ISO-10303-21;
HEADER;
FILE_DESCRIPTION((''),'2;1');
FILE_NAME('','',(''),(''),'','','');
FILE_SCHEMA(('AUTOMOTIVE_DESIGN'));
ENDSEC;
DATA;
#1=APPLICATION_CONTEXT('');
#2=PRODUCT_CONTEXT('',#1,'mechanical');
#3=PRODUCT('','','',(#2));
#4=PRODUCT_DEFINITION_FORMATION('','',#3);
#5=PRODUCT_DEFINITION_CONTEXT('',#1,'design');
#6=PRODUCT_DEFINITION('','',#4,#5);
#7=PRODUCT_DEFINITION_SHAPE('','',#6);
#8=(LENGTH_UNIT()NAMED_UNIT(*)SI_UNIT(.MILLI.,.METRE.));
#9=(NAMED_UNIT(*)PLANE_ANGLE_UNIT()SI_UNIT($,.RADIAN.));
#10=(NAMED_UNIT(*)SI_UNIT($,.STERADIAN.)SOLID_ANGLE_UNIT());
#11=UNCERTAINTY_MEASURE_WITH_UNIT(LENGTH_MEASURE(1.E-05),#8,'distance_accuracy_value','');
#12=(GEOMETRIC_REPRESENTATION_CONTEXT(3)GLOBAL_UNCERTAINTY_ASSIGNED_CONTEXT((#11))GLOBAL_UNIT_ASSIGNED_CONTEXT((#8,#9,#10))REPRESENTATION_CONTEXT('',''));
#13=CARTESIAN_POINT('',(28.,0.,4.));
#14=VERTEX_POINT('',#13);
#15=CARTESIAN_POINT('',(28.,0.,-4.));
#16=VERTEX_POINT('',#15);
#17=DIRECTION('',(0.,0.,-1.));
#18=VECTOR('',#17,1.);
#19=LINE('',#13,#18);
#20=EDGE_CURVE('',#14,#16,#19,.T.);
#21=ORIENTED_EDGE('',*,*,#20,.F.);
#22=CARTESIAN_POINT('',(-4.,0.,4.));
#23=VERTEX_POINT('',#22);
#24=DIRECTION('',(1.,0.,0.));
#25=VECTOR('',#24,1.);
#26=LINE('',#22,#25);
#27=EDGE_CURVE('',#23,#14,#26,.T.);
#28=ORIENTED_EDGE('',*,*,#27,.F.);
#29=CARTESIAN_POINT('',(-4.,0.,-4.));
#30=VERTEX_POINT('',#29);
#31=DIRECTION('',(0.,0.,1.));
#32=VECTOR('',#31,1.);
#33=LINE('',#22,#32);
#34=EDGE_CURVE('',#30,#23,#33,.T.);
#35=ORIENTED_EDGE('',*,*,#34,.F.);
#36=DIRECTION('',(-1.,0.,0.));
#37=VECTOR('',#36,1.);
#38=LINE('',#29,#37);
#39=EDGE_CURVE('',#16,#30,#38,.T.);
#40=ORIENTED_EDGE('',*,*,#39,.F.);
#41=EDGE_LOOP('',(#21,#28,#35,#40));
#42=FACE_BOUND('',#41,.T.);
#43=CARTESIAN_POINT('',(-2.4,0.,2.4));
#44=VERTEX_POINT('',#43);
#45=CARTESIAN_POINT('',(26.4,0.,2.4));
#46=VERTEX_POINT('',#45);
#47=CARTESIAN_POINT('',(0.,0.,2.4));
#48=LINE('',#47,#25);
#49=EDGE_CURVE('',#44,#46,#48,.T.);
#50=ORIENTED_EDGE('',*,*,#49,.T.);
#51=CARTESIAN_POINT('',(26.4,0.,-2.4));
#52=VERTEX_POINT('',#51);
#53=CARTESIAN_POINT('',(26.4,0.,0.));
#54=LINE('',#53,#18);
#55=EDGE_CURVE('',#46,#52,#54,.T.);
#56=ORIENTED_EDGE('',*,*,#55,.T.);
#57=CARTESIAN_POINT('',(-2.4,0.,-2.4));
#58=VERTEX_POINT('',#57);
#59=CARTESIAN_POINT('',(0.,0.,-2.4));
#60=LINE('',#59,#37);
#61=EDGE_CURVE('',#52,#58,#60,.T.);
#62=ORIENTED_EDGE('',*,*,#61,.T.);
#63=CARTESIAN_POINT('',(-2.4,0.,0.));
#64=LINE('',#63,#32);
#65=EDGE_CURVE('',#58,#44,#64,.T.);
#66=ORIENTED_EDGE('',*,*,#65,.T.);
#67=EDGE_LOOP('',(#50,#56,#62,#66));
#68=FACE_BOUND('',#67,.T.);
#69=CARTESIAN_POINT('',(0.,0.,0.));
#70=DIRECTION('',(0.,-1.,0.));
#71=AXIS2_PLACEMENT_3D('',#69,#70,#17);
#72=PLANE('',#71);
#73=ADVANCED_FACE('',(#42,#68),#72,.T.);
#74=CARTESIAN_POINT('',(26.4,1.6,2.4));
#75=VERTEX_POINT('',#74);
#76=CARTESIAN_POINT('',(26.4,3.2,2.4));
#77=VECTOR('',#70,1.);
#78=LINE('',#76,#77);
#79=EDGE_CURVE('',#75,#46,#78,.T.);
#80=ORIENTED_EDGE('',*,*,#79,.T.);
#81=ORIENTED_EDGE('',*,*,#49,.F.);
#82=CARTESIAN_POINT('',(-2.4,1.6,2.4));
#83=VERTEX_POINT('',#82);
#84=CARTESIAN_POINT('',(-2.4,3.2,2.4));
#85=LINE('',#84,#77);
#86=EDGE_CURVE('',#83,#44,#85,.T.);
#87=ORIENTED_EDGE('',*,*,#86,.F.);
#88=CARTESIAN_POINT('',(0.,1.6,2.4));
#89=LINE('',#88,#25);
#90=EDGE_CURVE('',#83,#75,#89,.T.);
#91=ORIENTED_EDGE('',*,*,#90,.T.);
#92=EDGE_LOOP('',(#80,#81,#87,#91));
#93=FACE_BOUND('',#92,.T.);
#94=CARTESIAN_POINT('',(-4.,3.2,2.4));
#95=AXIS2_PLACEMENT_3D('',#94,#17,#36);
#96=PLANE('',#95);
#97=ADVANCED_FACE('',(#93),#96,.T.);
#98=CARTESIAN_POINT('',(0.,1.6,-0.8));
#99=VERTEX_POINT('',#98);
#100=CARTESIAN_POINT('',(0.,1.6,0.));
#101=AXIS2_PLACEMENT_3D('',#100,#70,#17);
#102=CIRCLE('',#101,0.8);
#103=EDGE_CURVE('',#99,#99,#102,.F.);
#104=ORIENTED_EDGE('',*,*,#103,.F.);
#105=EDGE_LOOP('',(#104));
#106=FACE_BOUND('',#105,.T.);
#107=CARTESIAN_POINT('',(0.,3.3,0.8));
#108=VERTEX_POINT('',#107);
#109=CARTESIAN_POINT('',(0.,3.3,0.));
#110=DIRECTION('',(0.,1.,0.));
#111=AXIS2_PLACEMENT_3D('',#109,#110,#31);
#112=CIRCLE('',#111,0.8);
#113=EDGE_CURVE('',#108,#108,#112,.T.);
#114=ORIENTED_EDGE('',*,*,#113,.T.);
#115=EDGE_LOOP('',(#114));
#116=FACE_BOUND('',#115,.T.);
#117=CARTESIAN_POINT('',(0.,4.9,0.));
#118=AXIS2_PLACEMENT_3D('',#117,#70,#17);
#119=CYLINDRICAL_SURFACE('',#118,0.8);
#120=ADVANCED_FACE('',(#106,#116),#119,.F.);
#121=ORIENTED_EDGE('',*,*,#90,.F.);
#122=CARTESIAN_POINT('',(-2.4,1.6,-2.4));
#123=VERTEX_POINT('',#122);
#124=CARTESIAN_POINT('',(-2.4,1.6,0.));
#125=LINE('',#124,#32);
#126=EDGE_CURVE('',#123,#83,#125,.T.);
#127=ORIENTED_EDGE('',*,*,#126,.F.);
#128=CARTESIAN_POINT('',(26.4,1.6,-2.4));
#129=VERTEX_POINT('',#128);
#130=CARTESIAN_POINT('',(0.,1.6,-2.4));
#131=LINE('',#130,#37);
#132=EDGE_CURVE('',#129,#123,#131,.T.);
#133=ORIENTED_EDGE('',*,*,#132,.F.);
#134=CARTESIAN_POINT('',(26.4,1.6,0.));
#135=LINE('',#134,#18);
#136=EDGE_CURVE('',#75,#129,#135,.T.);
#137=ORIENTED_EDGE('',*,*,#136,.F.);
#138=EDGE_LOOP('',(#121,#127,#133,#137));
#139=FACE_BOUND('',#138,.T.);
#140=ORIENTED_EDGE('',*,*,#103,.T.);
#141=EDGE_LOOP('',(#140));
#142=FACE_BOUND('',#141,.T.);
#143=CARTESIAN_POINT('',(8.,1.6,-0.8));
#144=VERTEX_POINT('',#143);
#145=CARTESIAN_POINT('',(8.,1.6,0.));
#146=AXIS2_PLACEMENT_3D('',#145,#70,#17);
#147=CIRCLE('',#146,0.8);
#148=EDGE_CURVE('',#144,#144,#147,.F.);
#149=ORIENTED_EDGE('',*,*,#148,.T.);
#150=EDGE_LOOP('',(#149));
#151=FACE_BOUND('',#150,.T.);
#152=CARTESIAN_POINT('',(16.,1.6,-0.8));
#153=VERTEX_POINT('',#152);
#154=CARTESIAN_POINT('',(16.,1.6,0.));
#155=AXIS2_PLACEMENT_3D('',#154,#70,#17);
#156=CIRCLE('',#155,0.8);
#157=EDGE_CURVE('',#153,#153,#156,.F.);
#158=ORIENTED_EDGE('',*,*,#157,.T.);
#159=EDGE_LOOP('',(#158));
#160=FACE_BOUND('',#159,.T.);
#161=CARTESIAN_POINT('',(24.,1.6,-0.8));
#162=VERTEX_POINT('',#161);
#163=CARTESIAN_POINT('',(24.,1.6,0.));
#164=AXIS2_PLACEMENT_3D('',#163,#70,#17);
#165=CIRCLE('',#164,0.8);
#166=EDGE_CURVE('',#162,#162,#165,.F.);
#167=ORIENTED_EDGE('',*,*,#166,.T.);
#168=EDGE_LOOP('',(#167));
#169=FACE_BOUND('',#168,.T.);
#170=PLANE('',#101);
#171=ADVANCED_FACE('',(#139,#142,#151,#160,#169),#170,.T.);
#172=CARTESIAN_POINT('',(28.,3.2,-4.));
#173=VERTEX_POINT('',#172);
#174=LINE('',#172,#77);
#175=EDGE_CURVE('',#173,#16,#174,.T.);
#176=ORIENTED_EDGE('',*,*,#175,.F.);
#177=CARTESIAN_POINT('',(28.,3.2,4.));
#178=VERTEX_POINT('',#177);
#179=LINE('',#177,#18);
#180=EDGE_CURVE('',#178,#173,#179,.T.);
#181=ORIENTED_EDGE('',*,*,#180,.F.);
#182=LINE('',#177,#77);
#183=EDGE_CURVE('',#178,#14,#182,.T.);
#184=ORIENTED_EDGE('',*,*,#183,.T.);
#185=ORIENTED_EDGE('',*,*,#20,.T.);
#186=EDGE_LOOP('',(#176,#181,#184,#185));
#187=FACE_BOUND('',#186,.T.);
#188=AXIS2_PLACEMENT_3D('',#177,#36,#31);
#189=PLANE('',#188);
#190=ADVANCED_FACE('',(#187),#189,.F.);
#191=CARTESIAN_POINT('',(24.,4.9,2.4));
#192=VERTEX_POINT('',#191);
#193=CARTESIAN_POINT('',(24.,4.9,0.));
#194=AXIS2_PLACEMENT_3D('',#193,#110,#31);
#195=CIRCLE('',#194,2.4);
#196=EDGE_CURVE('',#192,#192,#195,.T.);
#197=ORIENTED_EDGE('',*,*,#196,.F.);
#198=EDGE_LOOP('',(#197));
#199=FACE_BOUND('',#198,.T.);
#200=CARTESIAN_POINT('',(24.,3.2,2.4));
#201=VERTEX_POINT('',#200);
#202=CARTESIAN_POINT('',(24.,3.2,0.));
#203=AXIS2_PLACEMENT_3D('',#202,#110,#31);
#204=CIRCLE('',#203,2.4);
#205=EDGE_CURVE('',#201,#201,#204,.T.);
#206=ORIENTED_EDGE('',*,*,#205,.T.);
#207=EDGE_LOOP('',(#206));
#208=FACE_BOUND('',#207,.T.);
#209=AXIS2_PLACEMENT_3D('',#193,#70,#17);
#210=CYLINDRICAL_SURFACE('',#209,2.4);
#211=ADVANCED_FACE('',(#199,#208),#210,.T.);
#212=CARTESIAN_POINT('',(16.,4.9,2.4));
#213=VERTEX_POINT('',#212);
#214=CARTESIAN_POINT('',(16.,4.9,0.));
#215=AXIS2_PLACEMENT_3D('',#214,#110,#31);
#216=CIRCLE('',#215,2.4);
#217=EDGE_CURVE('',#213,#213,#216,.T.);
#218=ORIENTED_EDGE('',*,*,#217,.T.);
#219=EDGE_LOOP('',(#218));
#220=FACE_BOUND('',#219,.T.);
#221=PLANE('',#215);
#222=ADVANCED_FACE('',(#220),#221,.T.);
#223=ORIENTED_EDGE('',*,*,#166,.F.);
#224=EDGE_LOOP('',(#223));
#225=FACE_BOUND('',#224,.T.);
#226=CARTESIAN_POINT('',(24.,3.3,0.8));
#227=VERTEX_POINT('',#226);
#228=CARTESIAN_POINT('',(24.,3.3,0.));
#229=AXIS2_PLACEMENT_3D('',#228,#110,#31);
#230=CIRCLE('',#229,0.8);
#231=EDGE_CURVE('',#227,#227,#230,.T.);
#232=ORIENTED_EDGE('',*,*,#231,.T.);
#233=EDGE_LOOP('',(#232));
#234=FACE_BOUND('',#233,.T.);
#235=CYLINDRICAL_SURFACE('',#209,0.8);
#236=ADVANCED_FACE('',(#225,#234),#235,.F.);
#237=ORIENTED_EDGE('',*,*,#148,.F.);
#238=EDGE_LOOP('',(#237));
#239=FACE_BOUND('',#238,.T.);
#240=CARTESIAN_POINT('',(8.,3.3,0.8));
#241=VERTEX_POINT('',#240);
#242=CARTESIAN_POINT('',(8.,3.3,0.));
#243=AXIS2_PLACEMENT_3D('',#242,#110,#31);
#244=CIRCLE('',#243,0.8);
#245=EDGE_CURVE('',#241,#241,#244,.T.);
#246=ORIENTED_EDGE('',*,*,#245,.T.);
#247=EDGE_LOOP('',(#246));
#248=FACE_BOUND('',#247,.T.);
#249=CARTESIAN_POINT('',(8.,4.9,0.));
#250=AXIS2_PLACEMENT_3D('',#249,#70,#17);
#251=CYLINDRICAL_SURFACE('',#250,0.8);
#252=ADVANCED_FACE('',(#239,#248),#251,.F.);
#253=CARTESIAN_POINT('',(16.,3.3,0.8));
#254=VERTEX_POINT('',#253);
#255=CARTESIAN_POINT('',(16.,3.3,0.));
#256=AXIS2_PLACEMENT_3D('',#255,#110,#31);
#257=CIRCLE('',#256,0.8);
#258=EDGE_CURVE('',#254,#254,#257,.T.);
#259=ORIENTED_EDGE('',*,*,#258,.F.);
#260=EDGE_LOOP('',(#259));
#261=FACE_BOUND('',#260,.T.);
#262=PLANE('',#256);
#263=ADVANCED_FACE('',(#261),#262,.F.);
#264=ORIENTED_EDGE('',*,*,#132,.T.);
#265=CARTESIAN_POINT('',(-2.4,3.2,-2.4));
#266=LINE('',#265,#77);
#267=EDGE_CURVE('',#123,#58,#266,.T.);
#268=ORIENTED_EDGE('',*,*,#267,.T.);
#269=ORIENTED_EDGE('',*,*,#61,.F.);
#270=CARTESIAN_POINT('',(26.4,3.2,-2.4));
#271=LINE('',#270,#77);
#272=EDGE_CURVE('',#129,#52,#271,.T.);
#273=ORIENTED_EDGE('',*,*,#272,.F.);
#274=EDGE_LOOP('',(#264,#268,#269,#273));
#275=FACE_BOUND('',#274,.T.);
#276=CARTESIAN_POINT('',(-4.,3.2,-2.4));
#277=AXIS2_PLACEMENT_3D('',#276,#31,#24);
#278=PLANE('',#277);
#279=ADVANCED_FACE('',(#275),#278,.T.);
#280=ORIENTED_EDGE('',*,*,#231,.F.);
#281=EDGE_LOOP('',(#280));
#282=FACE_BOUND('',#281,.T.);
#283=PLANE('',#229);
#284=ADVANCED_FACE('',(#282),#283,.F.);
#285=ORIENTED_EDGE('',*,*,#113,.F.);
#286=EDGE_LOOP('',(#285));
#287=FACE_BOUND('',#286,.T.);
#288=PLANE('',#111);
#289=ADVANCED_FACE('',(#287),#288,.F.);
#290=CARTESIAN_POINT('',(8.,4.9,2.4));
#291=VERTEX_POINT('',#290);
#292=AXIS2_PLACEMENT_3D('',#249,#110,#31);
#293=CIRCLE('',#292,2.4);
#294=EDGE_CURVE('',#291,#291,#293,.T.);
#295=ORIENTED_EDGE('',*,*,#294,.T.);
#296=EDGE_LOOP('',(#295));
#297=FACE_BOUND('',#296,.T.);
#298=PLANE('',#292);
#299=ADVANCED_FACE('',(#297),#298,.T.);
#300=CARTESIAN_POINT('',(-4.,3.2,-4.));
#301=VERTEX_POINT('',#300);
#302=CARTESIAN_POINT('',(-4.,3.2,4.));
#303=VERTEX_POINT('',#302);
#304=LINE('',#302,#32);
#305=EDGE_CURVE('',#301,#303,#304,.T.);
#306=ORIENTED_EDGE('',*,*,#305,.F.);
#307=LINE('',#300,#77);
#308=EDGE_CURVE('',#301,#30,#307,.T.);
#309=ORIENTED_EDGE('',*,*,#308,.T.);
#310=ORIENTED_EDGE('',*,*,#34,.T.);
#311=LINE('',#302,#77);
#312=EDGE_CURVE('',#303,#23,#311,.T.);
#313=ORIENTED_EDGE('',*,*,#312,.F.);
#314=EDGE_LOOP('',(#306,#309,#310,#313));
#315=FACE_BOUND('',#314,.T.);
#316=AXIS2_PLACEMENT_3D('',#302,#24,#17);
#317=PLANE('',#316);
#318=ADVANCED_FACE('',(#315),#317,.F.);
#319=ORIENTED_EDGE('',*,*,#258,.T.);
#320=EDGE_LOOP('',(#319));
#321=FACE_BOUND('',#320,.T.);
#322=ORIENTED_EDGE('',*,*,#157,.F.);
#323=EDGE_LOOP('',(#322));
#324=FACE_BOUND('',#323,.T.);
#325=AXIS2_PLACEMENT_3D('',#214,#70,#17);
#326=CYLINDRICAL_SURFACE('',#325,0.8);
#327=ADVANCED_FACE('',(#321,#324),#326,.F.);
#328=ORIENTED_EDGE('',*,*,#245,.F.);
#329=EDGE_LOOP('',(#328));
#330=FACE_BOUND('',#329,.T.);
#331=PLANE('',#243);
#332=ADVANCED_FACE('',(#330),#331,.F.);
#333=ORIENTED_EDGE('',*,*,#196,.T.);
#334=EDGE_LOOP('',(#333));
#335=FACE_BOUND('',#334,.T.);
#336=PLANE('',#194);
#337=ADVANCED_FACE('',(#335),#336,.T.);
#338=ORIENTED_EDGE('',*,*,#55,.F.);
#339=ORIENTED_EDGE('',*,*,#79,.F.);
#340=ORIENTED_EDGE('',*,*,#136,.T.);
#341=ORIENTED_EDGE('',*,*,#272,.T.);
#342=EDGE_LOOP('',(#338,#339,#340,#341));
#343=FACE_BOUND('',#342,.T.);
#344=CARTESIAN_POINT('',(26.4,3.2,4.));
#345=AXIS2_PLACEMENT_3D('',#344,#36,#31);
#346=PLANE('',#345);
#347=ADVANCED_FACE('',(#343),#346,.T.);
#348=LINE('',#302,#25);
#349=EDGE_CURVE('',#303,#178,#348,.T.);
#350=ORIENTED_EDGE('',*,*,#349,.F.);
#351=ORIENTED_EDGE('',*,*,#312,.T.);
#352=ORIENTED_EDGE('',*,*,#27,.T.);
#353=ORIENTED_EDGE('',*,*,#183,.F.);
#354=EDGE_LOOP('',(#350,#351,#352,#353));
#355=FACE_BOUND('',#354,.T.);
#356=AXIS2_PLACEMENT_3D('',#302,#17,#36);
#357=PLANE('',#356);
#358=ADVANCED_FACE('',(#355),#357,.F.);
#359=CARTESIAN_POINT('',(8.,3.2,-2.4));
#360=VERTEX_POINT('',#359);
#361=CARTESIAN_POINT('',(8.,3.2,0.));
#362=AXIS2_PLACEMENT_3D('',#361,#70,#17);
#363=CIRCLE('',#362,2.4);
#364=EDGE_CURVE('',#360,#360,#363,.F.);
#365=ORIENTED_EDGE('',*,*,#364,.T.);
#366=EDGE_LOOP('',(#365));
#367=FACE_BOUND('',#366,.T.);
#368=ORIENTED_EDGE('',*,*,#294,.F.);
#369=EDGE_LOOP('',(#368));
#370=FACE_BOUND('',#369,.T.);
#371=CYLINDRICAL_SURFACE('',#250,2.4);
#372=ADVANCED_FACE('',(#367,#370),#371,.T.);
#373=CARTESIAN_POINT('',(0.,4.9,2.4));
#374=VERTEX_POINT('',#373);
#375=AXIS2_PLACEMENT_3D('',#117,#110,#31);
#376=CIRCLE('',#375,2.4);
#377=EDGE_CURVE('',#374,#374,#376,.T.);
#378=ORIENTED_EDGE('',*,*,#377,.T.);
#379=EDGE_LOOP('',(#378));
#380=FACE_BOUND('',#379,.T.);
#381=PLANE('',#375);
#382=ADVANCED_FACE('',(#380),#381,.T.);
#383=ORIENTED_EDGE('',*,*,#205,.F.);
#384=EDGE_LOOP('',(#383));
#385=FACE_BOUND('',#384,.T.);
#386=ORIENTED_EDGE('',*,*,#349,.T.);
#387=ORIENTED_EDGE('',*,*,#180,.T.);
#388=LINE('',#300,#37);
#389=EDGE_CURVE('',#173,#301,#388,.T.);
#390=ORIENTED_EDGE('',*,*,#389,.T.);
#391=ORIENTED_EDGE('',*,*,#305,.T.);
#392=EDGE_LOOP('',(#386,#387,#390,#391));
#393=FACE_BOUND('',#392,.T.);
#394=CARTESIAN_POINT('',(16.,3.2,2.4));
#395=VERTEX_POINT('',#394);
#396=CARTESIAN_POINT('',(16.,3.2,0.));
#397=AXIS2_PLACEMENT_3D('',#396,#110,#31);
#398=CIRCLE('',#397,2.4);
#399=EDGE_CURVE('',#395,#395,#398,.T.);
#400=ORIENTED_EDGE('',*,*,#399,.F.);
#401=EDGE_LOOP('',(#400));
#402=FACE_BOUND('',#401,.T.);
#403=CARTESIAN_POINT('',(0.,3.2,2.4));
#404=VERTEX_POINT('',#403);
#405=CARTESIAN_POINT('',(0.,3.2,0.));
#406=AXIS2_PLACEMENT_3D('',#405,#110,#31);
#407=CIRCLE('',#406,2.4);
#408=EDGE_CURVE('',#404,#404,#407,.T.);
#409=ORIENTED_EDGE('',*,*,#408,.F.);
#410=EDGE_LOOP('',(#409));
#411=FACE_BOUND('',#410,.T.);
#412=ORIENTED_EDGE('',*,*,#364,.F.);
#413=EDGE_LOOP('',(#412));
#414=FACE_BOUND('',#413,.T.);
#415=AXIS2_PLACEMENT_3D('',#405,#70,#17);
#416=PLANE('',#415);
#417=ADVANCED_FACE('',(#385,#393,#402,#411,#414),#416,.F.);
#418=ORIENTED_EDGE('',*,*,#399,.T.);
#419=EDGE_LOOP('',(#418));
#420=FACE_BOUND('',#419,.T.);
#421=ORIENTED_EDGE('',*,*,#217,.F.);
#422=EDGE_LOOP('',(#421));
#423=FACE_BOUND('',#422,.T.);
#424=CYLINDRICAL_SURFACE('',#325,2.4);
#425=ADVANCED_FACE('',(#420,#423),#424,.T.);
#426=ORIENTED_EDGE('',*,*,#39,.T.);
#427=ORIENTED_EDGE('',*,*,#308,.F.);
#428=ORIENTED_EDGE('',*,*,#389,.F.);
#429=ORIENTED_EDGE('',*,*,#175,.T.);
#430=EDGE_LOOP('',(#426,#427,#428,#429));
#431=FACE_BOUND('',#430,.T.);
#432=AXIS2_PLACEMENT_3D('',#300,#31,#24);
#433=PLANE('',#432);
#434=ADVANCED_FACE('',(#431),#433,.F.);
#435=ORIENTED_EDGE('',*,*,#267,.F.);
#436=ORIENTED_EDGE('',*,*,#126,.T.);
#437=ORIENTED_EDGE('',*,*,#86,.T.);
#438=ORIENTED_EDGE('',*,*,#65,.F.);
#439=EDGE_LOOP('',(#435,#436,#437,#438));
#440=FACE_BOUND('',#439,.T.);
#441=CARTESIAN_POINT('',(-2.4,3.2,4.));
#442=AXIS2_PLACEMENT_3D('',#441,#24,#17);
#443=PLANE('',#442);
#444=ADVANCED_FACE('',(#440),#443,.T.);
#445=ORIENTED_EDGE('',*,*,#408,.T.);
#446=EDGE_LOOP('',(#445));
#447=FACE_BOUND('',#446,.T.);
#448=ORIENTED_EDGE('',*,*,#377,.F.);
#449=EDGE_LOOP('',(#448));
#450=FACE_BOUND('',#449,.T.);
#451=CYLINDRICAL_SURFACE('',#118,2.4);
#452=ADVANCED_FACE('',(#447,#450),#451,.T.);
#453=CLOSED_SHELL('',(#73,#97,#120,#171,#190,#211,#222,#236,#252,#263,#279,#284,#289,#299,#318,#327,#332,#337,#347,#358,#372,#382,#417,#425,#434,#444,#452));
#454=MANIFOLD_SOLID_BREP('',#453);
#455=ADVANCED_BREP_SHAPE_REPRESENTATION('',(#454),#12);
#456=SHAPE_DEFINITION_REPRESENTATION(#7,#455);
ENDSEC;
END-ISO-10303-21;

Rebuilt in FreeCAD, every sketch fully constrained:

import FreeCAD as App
import Part
import Sketcher
from FreeCAD import Vector


def faces_at(feature, points):
    """Names of the faces that lie closest to the given points."""
    faces = feature.Shape.Faces
    near = lambda p: min(range(len(faces)), key=lambda i: faces[i].distToShape(Part.Vertex(*p))[0])
    return sorted({f"Face{near(p) + 1}" for p in points})


def add_polygon(sketch, points):
    """Adds a closed chain of lines whose ends are joined by coincident constraints."""
    first, n = sketch.GeometryCount, len(points)
    for a, b in zip(points, points[1:] + points[:1]):
        sketch.addGeometry(Part.LineSegment(App.Vector(*a, 0), App.Vector(*b, 0)), False)
    for i in range(n):
        sketch.addConstraint(Sketcher.Constraint("Coincident", first + i, 2, first + (i + 1) % n, 1))

doc = App.newDocument("Part")
params = doc.addObject("Spreadsheet::Sheet", "Params")
for row, (alias, value) in enumerate([
    ("sketch1_width", "8 mm"),
    ("pad1_length", "3.2 mm"),
    ("sketch2_diameter", "4.8 mm"),
    ("pad2_length", "1.7 mm"),
    ("linearpattern_pitch", "8 mm"),
    ("thickness_wall", "1.6 mm"),
], start=1):
    params.set(f"A{row}", alias)
    params.set(f"B{row}", "=" + value)
    params.setAlias(f"B{row}", alias)

body = doc.addObject("PartDesign::Body", "Body")

sketch1 = doc.addObject("Sketcher::SketchObject", "Sketch")
body.addObject(sketch1)
sketch1.AttachmentSupport = (doc.XZ_Plane, [""])
sketch1.MapMode = "FlatFace"
add_polygon(sketch1, [(-4, -4), (-4, 4), (4, 4), (4, -4)])
sketch1.addConstraint([
    Sketcher.Constraint("Vertical", 0),
    Sketcher.Constraint("Horizontal", 1),
    Sketcher.Constraint("Vertical", 2),
    Sketcher.Constraint("Horizontal", 3),
    Sketcher.Constraint("Symmetric", 0, 2, 2, 2, -1, 1),
    Sketcher.Constraint("Equal", 3, 0),
    Sketcher.Constraint("DistanceX", 1, 1, 1, 2, 8.0),
])
sketch1.setExpression("Constraints[10]", "Params.sketch1_width")
pad1 = doc.addObject("PartDesign::Pad", "Pad")
body.addObject(pad1)
pad1.Profile = sketch1
pad1.setExpression("Length", "Params.pad1_length")
pad1.Reversed = True

sketch2 = doc.addObject("Sketcher::SketchObject", "Sketch001")
body.addObject(sketch2)
sketch2.AttachmentSupport = (doc.XZ_Plane, [""])
sketch2.MapMode = "FlatFace"
sketch2.AttachmentOffset = App.Placement(Vector(0, 0, -3.2), App.Rotation())
sketch2.addGeometry(Part.Circle(Vector(0, 0, 0), Vector(0, 0, 1), 2.4), False)
sketch2.addConstraint([
    Sketcher.Constraint("Coincident", 0, 3, -1, 1),
    Sketcher.Constraint("Diameter", 0, 4.8),
])
sketch2.setExpression("Constraints[1]", "Params.sketch2_diameter")
pad2 = doc.addObject("PartDesign::Pad", "Pad001")
body.addObject(pad2)
pad2.Profile = sketch2
pad2.setExpression("Length", "Params.pad2_length")
pad2.Reversed = True
doc.recompute()

linearpattern = doc.addObject("PartDesign::LinearPattern", "LinearPattern")
body.addObject(linearpattern)
linearpattern.Originals = [pad1, pad2]
linearpattern.Direction = (doc.X_Axis, [""])
linearpattern.Mode = "offset"
linearpattern.setExpression("Offset", "Params.linearpattern_pitch")
linearpattern.Occurrences = 4
body.Tip = linearpattern
doc.recompute()

thickness = doc.addObject("PartDesign::Thickness", "Thickness")
body.addObject(thickness)
thickness.Base = (linearpattern, faces_at(linearpattern, [(12, 0, 0)]))
thickness.setExpression("Value", "Params.thickness_wall")
thickness.Reversed = True
thickness.Join = "Intersection"

doc.recompute()
